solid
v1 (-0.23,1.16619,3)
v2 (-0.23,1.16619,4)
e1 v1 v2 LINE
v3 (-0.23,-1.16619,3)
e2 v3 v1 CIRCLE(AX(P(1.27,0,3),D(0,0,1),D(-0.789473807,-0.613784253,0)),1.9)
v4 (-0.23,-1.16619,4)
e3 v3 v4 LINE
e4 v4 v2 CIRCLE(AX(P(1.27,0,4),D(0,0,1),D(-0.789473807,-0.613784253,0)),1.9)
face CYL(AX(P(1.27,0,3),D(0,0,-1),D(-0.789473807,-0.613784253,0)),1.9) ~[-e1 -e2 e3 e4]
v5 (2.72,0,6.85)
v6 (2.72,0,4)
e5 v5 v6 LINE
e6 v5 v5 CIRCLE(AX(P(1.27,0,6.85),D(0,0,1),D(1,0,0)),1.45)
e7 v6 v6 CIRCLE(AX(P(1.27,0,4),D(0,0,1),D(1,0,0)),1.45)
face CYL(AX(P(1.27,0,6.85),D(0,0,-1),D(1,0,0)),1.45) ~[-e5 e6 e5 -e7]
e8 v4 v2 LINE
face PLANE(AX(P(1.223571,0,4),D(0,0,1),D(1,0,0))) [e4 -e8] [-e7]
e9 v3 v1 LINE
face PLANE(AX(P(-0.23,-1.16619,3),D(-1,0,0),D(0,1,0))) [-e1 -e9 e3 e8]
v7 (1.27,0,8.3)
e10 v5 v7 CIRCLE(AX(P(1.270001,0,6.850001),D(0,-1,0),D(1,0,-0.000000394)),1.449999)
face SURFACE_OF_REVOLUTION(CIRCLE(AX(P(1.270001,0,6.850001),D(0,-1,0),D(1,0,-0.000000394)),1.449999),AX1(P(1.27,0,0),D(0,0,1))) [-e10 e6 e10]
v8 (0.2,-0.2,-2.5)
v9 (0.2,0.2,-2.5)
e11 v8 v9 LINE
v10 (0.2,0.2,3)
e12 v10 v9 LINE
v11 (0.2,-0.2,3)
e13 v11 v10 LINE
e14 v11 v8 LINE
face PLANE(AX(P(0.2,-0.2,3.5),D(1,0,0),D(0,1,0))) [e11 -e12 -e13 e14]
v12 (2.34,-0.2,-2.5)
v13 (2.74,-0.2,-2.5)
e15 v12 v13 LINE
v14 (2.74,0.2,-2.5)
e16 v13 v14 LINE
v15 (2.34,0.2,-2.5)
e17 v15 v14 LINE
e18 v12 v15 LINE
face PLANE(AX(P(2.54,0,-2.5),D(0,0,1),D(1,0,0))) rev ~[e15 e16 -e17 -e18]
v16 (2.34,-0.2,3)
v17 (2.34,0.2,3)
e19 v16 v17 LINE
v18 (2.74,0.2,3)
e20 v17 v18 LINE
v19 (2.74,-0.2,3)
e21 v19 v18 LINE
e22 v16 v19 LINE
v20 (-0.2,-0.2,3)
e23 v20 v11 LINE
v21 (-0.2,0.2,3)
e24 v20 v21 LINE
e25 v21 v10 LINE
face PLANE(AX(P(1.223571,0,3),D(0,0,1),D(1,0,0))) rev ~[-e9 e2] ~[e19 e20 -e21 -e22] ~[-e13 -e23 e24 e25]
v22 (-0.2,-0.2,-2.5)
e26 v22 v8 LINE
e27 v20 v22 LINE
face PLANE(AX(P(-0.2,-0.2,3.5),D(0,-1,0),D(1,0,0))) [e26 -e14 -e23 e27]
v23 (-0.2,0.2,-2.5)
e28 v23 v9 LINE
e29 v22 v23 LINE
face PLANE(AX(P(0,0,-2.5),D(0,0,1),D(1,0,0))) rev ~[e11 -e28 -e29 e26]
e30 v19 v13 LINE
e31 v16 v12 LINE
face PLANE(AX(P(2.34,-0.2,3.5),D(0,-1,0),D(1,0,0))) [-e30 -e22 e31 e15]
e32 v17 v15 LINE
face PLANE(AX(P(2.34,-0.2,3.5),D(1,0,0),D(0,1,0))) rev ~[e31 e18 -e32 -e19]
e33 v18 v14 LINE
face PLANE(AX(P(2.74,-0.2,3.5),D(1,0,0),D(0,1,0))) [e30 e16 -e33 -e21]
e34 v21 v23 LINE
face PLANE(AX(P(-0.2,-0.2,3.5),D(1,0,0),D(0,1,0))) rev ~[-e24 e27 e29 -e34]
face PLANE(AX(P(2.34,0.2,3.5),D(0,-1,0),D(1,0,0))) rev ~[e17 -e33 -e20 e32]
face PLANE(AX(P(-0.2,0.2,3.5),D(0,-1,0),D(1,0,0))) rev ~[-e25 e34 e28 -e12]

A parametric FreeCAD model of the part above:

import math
import FreeCAD as App
import Part
import Sketcher
Q = App.Units.Quantity


def add_polygon(sketch, points):
    """Adds a closed chain of lines whose ends are joined by coincident constraints."""
    first, n = sketch.GeometryCount, len(points)
    for a, b in zip(points, points[1:] + points[:1]):
        sketch.addGeometry(Part.LineSegment(App.Vector(*a, 0), App.Vector(*b, 0)), False)
    for i in range(n):
        sketch.addConstraint(Sketcher.Constraint("Coincident", first + i, 2, first + (i + 1) % n, 1))

doc = App.newDocument("Part")
body = doc.addObject("PartDesign::Body", "Body")

# Sketch on XY plane
sketch1 = body.newObject("Sketcher::SketchObject", "Sketch")
sketch1.AttachmentSupport = (doc.getObject("XY_Plane"), [""])
sketch1.MapMode = "FlatFace"
sketch1.AttachmentOffset = App.Placement(App.Vector(0, 0, 3), App.Rotation())
sketch1.addGeometry(Part.ArcOfCircle(Part.Circle(App.Vector(1.3, 0, 0), App.Vector(0, 0, 1), 1.9), math.radians(-142), math.radians(142)), False)
sketch1.addGeometry(Part.LineSegment(App.Vector(-0.2, 1.2, 0), App.Vector(-0.2, -1.2, 0)), False)
sketch1.addConstraint(Sketcher.Constraint("Coincident", 0, 1, 1, 2))
sketch1.addConstraint(Sketcher.Constraint("Coincident", 1, 1, 0, 2))
sketch1.addConstraint(Sketcher.Constraint("Vertical", 1))
sketch1.addConstraint(Sketcher.Constraint("PointOnObject", 0, 3, -1))
sketch1.addConstraint(Sketcher.Constraint("Radius", 0, Q("1.9 mm")))
sketch1.addConstraint(Sketcher.Constraint("DistanceX", 0, 1, 0, 3, Q("1.5 mm")))
sketch1.addConstraint(Sketcher.Constraint("DistanceX", -1, 1, 0, 3, Q("1.27 mm")))
pad1 = body.newObject("PartDesign::Pad", "Pad")
pad1.Profile = sketch1
pad1.Length = 1
body2 = doc.addObject("PartDesign::Body", "Body001")
body2.AllowCompound = True

# Sketch on XY plane
sketch2 = body2.newObject("Sketcher::SketchObject", "Sketch001")
sketch2.AttachmentSupport = (doc.getObject("XY_Plane001"), [""])
sketch2.MapMode = "FlatFace"
sketch2.AttachmentOffset = App.Placement(App.Vector(0, 0, 3.5), App.Rotation())
add_polygon(sketch2, [(-0.2, 0.2), (-0.2, -0.2), (0.2, -0.2), (0.2, 0.2)])  # lines 0-3
add_polygon(sketch2, [(2.34, 0.2), (2.34, -0.2), (2.74, -0.2), (2.74, 0.2)])  # lines 4-7
sketch2.addConstraint(Sketcher.Constraint("Vertical", 0))
sketch2.addConstraint(Sketcher.Constraint("Horizontal", 1))
sketch2.addConstraint(Sketcher.Constraint("Vertical", 2))
sketch2.addConstraint(Sketcher.Constraint("Horizontal", 3))
sketch2.addConstraint(Sketcher.Constraint("Vertical", 4))
sketch2.addConstraint(Sketcher.Constraint("Horizontal", 5))
sketch2.addConstraint(Sketcher.Constraint("Vertical", 6))
sketch2.addConstraint(Sketcher.Constraint("Horizontal", 7))
sketch2.addConstraint(Sketcher.Constraint("Symmetric", 0, 2, 2, 2, -1, 1))
sketch2.addConstraint(Sketcher.Constraint("Horizontal", 1, 2, 4, 2))
sketch2.addConstraint(Sketcher.Constraint("Horizontal", 3, 2, 6, 2))
sketch2.addConstraint(Sketcher.Constraint("Equal", 3, 5))
sketch2.addConstraint(Sketcher.Constraint("Equal", 7, 0))
sketch2.addConstraint(Sketcher.Constraint("DistanceX", 1, 1, 1, 2, Q("0.4 mm")))
sketch2.addConstraint(Sketcher.Constraint("DistanceX", -1, 1, 4, 2, Q("2.34 mm")))
pad2 = body2.newObject("PartDesign::Pad", "Pad001")
pad2.Profile = sketch2
pad2.Length = 6
pad2.Reversed = True
body3 = doc.addObject("PartDesign::Body", "Body002")

# Sketch on XY plane
sketch3 = body3.newObject("Sketcher::SketchObject", "Sketch002")
sketch3.AttachmentSupport = (doc.getObject("XY_Plane002"), [""])
sketch3.MapMode = "FlatFace"
sketch3.AttachmentOffset = App.Placement(App.Vector(0, 0, 3.5), App.Rotation())
add_polygon(sketch3, [(-0.15, 0.2), (-0.15, -0.2), (2.69, -0.2), (2.69, 0.2)])  # lines 0-3
sketch3.addConstraint(Sketcher.Constraint("Vertical", 0))
sketch3.addConstraint(Sketcher.Constraint("Horizontal", 1))
sketch3.addConstraint(Sketcher.Constraint("Vertical", 2))
sketch3.addConstraint(Sketcher.Constraint("Horizontal", 3))
sketch3.addConstraint(Sketcher.Constraint("DistanceY", 0, 2, 0, 1, Q("0.4 mm")))
sketch3.addConstraint(Sketcher.Constraint("DistanceX", 1, 1, 1, 2, Q("2.84 mm")))
sketch3.addConstraint(Sketcher.Constraint("DistanceY", 0, 2, -1, 1, Q("0.2 mm")))
sketch3.addConstraint(Sketcher.Constraint("DistanceX", 0, 2, -1, 1, Q("0.15 mm")))
pad3 = body3.newObject("PartDesign::Pad", "Pad002")
pad3.Profile = sketch3
pad3.Length = 1
body4 = doc.addObject("PartDesign::Body", "Body003")

# Sketch on XZ plane
sketch4 = body4.newObject("Sketcher::SketchObject", "Sketch003")
sketch4.AttachmentSupport = (doc.getObject("XZ_Plane003"), [""])
sketch4.MapMode = "FlatFace"
add_polygon(sketch4, [(0.82, 4.72), (1.27, 4.28), (1.27, 4.72)])  # lines 0-2
sketch4.addGeometry(Part.LineSegment(App.Vector(1.27, 4.72, 0), App.Vector(1.27, 4.28, 0)), True)  # axis
sketch4.addConstraint(Sketcher.Constraint("Vertical", 1))
sketch4.addConstraint(Sketcher.Constraint("Horizontal", 2))
sketch4.addConstraint(Sketcher.Constraint("Vertical", 3))
sketch4.addConstraint(Sketcher.Constraint("Coincident", 3, 1, 1, 2))
sketch4.addConstraint(Sketcher.Constraint("Equal", 2, 1))
sketch4.addConstraint(Sketcher.Constraint("Equal", 1, 3))
sketch4.addConstraint(Sketcher.Constraint("DistanceX", 2, 2, 2, 1, Q("0.45 mm")))
sketch4.addConstraint(Sketcher.Constraint("DistanceX", -1, 1, 0, 2, Q("1.27 mm")))
sketch4.addConstraint(Sketcher.Constraint("DistanceY", -1, 1, 0, 2, Q("4.275 mm")))
revolution = body4.newObject("PartDesign::Revolution", "Revolution")
revolution.Profile = sketch4
revolution.ReferenceAxis = (sketch4, ["Axis0"])
revolution.Angle = 360
body5 = doc.addObject("PartDesign::Body", "Body004")

# Sketch on XZ plane
sketch5 = body5.newObject("Sketcher::SketchObject", "Sketch004")
sketch5.AttachmentSupport = (doc.getObject("XZ_Plane004"), [""])
sketch5.MapMode = "FlatFace"
sketch5.addGeometry(Part.ArcOfCircle(Part.Circle(App.Vector(1.3, 6.9, 0), App.Vector(0, 0, 1), 1.4), math.radians(0), math.radians(90)), False)
sketch5.addGeometry(Part.LineSegment(App.Vector(1.3, 8.3, 0), App.Vector(1.3, 4, 0)), False)
sketch5.addGeometry(Part.LineSegment(App.Vector(1.3, 4, 0), App.Vector(2.7, 4, 0)), False)
sketch5.addGeometry(Part.LineSegment(App.Vector(2.7, 4, 0), App.Vector(2.7, 6.8, 0)), False)
sketch5.addGeometry(Part.LineSegment(App.Vector(1.3, 4, 0), App.Vector(1.3, 8.3, 0)), True)  # axis
sketch5.addConstraint(Sketcher.Constraint("Coincident", 0, 2, 1, 1))
sketch5.addConstraint(Sketcher.Constraint("Coincident", 1, 2, 2, 1))
sketch5.addConstraint(Sketcher.Constraint("Coincident", 2, 2, 3, 1))
sketch5.addConstraint(Sketcher.Constraint("Tangent", 3, 2, 0, 1))
sketch5.addConstraint(Sketcher.Constraint("Vertical", 1))
sketch5.addConstraint(Sketcher.Constraint("Horizontal", 2))
sketch5.addConstraint(Sketcher.Constraint("Vertical", 3))
sketch5.addConstraint(Sketcher.Constraint("Vertical", 4))
sketch5.addConstraint(Sketcher.Constraint("Coincident", 4, 1, 1, 2))
sketch5.addConstraint(Sketcher.Constraint("Equal", 1, 4))
sketch5.addConstraint(Sketcher.Constraint("Radius", 0, Q("1.449999 mm")))
sketch5.addConstraint(Sketcher.Constraint("DistanceY", 1, 2, 1, 1, Q("4.3 mm")))
sketch5.addConstraint(Sketcher.Constraint("DistanceY", -1, 1, 1, 2, Q("4 mm")))
sketch5.addConstraint(Sketcher.Constraint("DistanceX", 2, 1, 2, 2, Q("1.45 mm")))
sketch5.addConstraint(Sketcher.Constraint("DistanceX", -1, 1, 0, 3, Q("1.270001 mm")))
revolution2 = body5.newObject("PartDesign::Revolution", "Revolution001")
revolution2.Profile = sketch5
revolution2.ReferenceAxis = (sketch5, ["Axis0"])
revolution2.Angle = 360
doc.recompute()

boolean = body5.newObject("PartDesign::Boolean", "Boolean")
boolean.Type = "Fuse"
boolean.addObjects([body])
doc.recompute()

boolean2 = body5.newObject("PartDesign::Boolean", "Boolean001")
boolean2.Type = "Fuse"
boolean2.addObjects([body2])
doc.recompute()

boolean3 = body5.newObject("PartDesign::Boolean", "Boolean002")
boolean3.Type = "Fuse"
boolean3.addObjects([body3])
doc.recompute()

boolean4 = body5.newObject("PartDesign::Boolean", "Boolean003")
boolean4.Type = "Fuse"
boolean4.addObjects([body4])

doc.recompute()
